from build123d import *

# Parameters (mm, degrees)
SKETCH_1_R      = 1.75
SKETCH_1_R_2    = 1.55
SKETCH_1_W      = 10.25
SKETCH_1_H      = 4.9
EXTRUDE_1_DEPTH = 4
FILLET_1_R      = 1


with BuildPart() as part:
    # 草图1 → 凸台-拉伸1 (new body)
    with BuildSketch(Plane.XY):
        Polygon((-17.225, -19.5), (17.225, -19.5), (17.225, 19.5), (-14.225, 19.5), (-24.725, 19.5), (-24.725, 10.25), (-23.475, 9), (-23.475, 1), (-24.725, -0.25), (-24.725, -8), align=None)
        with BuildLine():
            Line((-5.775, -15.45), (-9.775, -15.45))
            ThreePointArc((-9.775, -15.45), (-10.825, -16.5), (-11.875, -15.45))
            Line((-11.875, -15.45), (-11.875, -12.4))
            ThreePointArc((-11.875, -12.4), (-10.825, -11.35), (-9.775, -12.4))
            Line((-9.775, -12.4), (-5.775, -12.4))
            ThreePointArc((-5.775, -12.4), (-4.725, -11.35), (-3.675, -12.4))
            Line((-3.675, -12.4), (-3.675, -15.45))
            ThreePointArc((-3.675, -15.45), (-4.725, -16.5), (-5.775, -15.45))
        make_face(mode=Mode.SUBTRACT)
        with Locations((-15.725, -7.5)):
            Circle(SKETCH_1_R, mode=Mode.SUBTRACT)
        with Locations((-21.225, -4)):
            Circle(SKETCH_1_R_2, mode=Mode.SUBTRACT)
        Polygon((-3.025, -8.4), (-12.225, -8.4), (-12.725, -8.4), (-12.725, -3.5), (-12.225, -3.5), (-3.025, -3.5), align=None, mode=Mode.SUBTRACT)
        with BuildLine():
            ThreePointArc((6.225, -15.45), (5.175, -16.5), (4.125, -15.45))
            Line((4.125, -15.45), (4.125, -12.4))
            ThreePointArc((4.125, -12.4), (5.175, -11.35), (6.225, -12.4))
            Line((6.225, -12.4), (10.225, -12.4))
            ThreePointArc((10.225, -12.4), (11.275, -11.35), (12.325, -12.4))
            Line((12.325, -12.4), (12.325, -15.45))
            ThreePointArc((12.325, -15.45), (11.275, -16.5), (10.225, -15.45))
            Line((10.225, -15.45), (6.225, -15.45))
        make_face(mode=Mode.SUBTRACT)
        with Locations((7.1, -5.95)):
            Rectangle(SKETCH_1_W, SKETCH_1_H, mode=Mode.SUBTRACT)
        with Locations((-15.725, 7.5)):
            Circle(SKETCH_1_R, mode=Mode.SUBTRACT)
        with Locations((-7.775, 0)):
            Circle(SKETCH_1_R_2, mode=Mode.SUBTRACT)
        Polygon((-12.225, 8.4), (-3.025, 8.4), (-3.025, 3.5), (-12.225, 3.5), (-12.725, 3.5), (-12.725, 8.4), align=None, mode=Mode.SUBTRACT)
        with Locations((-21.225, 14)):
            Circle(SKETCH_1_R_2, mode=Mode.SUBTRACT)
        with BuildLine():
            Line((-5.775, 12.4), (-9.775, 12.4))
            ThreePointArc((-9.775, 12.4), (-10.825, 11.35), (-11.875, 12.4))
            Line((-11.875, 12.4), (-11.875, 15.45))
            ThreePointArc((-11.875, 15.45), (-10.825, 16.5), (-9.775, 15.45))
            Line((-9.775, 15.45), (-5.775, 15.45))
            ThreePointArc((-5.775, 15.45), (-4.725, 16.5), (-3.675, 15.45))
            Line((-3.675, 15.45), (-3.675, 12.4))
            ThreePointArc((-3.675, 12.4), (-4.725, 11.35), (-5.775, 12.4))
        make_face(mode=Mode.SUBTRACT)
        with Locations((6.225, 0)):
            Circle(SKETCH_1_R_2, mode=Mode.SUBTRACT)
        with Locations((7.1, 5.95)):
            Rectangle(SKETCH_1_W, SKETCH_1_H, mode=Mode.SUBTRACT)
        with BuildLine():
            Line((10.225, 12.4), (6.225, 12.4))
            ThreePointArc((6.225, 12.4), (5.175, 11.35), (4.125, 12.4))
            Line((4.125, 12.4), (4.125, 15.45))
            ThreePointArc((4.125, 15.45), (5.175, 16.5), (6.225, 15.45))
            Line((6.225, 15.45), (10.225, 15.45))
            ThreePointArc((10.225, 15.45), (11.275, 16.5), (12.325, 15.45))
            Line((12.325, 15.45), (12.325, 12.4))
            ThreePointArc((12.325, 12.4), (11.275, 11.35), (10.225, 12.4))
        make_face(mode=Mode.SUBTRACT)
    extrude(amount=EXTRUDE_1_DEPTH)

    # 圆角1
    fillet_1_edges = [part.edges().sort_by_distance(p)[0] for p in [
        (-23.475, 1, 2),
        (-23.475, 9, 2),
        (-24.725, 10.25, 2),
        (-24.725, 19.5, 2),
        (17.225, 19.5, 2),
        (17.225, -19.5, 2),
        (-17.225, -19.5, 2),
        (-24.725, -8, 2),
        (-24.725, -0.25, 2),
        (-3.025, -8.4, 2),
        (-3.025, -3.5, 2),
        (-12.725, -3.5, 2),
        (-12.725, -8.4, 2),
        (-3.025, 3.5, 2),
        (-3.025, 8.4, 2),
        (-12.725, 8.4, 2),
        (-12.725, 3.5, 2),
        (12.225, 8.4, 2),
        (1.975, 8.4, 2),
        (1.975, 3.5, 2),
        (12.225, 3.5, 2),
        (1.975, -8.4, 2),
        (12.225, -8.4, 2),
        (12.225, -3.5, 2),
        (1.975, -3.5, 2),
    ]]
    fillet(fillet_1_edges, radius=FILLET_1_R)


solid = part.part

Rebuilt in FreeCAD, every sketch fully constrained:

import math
import FreeCAD as App
import Part
import Sketcher


def edges_at(feature, points):
    """Names of the edges that pass closest to the given points."""
    edges = feature.Shape.Edges
    near = lambda p: min(range(len(edges)), key=lambda i: edges[i].distToShape(Part.Vertex(*p))[0])
    return sorted({f"Edge{near(p) + 1}" for p in points})

doc = App.newDocument("Part")
body = doc.addObject("PartDesign::Body", "Body")

# Sketch on XY plane
sketch1 = doc.addObject("Sketcher::SketchObject", "Sketch")
body.addObject(sketch1)
sketch1.AttachmentSupport = (doc.XY_Plane, [""])
sketch1.MapMode = "FlatFace"
sketch1.addGeometry(Part.LineSegment(App.Vector(-17.2, -19.5, 0), App.Vector(17.2, -19.5, 0)), False)
sketch1.addGeometry(Part.LineSegment(App.Vector(17.2, -19.5, 0), App.Vector(17.2, 19.5, 0)), False)
sketch1.addGeometry(Part.LineSegment(App.Vector(17.2, 19.5, 0), App.Vector(-24.7, 19.5, 0)), False)
sketch1.addGeometry(Part.LineSegment(App.Vector(-24.7, 19.5, 0), App.Vector(-24.7, 10.2, 0)), False)
sketch1.addGeometry(Part.LineSegment(App.Vector(-24.7, 10.2, 0), App.Vector(-23.5, 9, 0)), False)
sketch1.addGeometry(Part.LineSegment(App.Vector(-23.5, 9, 0), App.Vector(-23.5, 1, 0)), False)
sketch1.addGeometry(Part.LineSegment(App.Vector(-23.5, 1, 0), App.Vector(-24.7, -0.2, 0)), False)
sketch1.addGeometry(Part.LineSegment(App.Vector(-24.7, -0.2, 0), App.Vector(-24.7, -8, 0)), False)
sketch1.addGeometry(Part.LineSegment(App.Vector(-24.7, -8, 0), App.Vector(-17.2, -19.5, 0)), False)
sketch1.addGeometry(Part.ArcOfCircle(Part.Circle(App.Vector(-4.7, -15.4, 0), App.Vector(0, 0, 1), 1.1), math.radians(180), math.radians(360)), False)
sketch1.addGeometry(Part.LineSegment(App.Vector(-5.8, -15.4, 0), App.Vector(-9.8, -15.4, 0)), False)
sketch1.addGeometry(Part.ArcOfCircle(Part.Circle(App.Vector(-10.8, -15.4, 0), App.Vector(0, 0, 1), 1.1), math.radians(180), math.radians(360)), False)
sketch1.addGeometry(Part.LineSegment(App.Vector(-11.9, -15.4, 0), App.Vector(-11.9, -12.4, 0)), False)
sketch1.addGeometry(Part.ArcOfCircle(Part.Circle(App.Vector(-10.8, -12.4, 0), App.Vector(0, 0, 1), 1.1), math.radians(0), math.radians(180)), False)
sketch1.addGeometry(Part.LineSegment(App.Vector(-9.8, -12.4, 0), App.Vector(-5.8, -12.4, 0)), False)
sketch1.addGeometry(Part.ArcOfCircle(Part.Circle(App.Vector(-4.7, -12.4, 0), App.Vector(0, 0, 1), 1.1), math.radians(0), math.radians(180)), False)
sketch1.addGeometry(Part.LineSegment(App.Vector(-3.7, -12.4, 0), App.Vector(-3.7, -15.4, 0)), False)
sketch1.addGeometry(Part.Circle(App.Vector(-15.7, -7.5, 0), App.Vector(0, 0, 1), 1.8), False)
sketch1.addGeometry(Part.Circle(App.Vector(-21.2, -4, 0), App.Vector(0, 0, 1), 1.6), False)
sketch1.addGeometry(Part.LineSegment(App.Vector(-3, -3.5, 0), App.Vector(-3, -8.4, 0)), False)
sketch1.addGeometry(Part.LineSegment(App.Vector(-3, -8.4, 0), App.Vector(-12.7, -8.4, 0)), False)
sketch1.addGeometry(Part.LineSegment(App.Vector(-12.7, -8.4, 0), App.Vector(-12.7, -3.5, 0)), False)
sketch1.addGeometry(Part.LineSegment(App.Vector(-12.7, -3.5, 0), App.Vector(-3, -3.5, 0)), False)
sketch1.addGeometry(Part.LineSegment(App.Vector(10.2, -15.4, 0), App.Vector(6.2, -15.4, 0)), False)
sketch1.addGeometry(Part.ArcOfCircle(Part.Circle(App.Vector(5.2, -15.4, 0), App.Vector(0, 0, 1), 1.1), math.radians(180), math.radians(360)), False)
sketch1.addGeometry(Part.LineSegment(App.Vector(4.1, -15.4, 0), App.Vector(4.1, -12.4, 0)), False)
sketch1.addGeometry(Part.ArcOfCircle(Part.Circle(App.Vector(5.2, -12.4, 0), App.Vector(0, 0, 1), 1.1), math.radians(0), math.radians(180)), False)
sketch1.addGeometry(Part.LineSegment(App.Vector(6.2, -12.4, 0), App.Vector(10.2, -12.4, 0)), False)
sketch1.addGeometry(Part.ArcOfCircle(Part.Circle(App.Vector(11.3, -12.4, 0), App.Vector(0, 0, 1), 1.1), math.radians(0), math.radians(180)), False)
sketch1.addGeometry(Part.LineSegment(App.Vector(12.3, -12.4, 0), App.Vector(12.3, -15.4, 0)), False)
sketch1.addGeometry(Part.ArcOfCircle(Part.Circle(App.Vector(11.3, -15.4, 0), App.Vector(0, 0, 1), 1.1), math.radians(180), math.radians(360)), False)
sketch1.addGeometry(Part.LineSegment(App.Vector(12.2, -8.4, 0), App.Vector(2, -8.4, 0)), False)
sketch1.addGeometry(Part.LineSegment(App.Vector(2, -8.4, 0), App.Vector(2, -3.5, 0)), False)
sketch1.addGeometry(Part.LineSegment(App.Vector(2, -3.5, 0), App.Vector(12.2, -3.5, 0)), False)
sketch1.addGeometry(Part.LineSegment(App.Vector(12.2, -3.5, 0), App.Vector(12.2, -8.4, 0)), False)
sketch1.addGeometry(Part.Circle(App.Vector(-15.7, 7.5, 0), App.Vector(0, 0, 1), 1.8), False)
sketch1.addGeometry(Part.Circle(App.Vector(-7.8, 0, 0), App.Vector(0, 0, 1), 1.6), False)
sketch1.addGeometry(Part.LineSegment(App.Vector(-12.7, 8.4, 0), App.Vector(-3, 8.4, 0)), False)
sketch1.addGeometry(Part.LineSegment(App.Vector(-3, 8.4, 0), App.Vector(-3, 3.5, 0)), False)
sketch1.addGeometry(Part.LineSegment(App.Vector(-3, 3.5, 0), App.Vector(-12.7, 3.5, 0)), False)
sketch1.addGeometry(Part.LineSegment(App.Vector(-12.7, 3.5, 0), App.Vector(-12.7, 8.4, 0)), False)
sketch1.addGeometry(Part.Circle(App.Vector(-21.2, 14, 0), App.Vector(0, 0, 1), 1.6), False)
sketch1.addGeometry(Part.ArcOfCircle(Part.Circle(App.Vector(-4.7, 12.4, 0), App.Vector(0, 0, 1), 1.1), math.radians(180), math.radians(360)), False)
sketch1.addGeometry(Part.LineSegment(App.Vector(-5.8, 12.4, 0), App.Vector(-9.8, 12.4, 0)), False)
sketch1.addGeometry(Part.ArcOfCircle(Part.Circle(App.Vector(-10.8, 12.4, 0), App.Vector(0, 0, 1), 1.1), math.radians(180), math.radians(360)), False)
sketch1.addGeometry(Part.LineSegment(App.Vector(-11.9, 12.4, 0), App.Vector(-11.9, 15.4, 0)), False)
sketch1.addGeometry(Part.ArcOfCircle(Part.Circle(App.Vector(-10.8, 15.4, 0), App.Vector(0, 0, 1), 1.1), math.radians(0), math.radians(180)), False)
sketch1.addGeometry(Part.LineSegment(App.Vector(-9.8, 15.4, 0), App.Vector(-5.8, 15.4, 0)), False)
sketch1.addGeometry(Part.ArcOfCircle(Part.Circle(App.Vector(-4.7, 15.4, 0), App.Vector(0, 0, 1), 1.1), math.radians(0), math.radians(180)), False)
sketch1.addGeometry(Part.LineSegment(App.Vector(-3.7, 15.4, 0), App.Vector(-3.7, 12.4, 0)), False)
sketch1.addGeometry(Part.Circle(App.Vector(6.2, 0, 0), App.Vector(0, 0, 1), 1.6), False)
sketch1.addGeometry(Part.LineSegment(App.Vector(12.2, 3.5, 0), App.Vector(2, 3.5, 0)), False)
sketch1.addGeometry(Part.LineSegment(App.Vector(2, 3.5, 0), App.Vector(2, 8.4, 0)), False)
sketch1.addGeometry(Part.LineSegment(App.Vector(2, 8.4, 0), App.Vector(12.2, 8.4, 0)), False)
sketch1.addGeometry(Part.LineSegment(App.Vector(12.2, 8.4, 0), App.Vector(12.2, 3.5, 0)), False)
sketch1.addGeometry(Part.ArcOfCircle(Part.Circle(App.Vector(11.3, 12.4, 0), App.Vector(0, 0, 1), 1.1), math.radians(180), math.radians(360)), False)
sketch1.addGeometry(Part.LineSegment(App.Vector(10.2, 12.4, 0), App.Vector(6.2, 12.4, 0)), False)
sketch1.addGeometry(Part.ArcOfCircle(Part.Circle(App.Vector(5.2, 12.4, 0), App.Vector(0, 0, 1), 1.1), math.radians(180), math.radians(360)), False)
sketch1.addGeometry(Part.LineSegment(App.Vector(4.1, 12.4, 0), App.Vector(4.1, 15.4, 0)), False)
sketch1.addGeometry(Part.ArcOfCircle(Part.Circle(App.Vector(5.2, 15.4, 0), App.Vector(0, 0, 1), 1.1), math.radians(0), math.radians(180)), False)
sketch1.addGeometry(Part.LineSegment(App.Vector(6.2, 15.4, 0), App.Vector(10.2, 15.4, 0)), False)
sketch1.addGeometry(Part.ArcOfCircle(Part.Circle(App.Vector(11.3, 15.4, 0), App.Vector(0, 0, 1), 1.1), math.radians(0), math.radians(180)), False)
sketch1.addGeometry(Part.LineSegment(App.Vector(12.3, 15.4, 0), App.Vector(12.3, 12.4, 0)), False)
sketch1.addConstraint(Sketcher.Constraint("Coincident", 0, 2, 1, 1))
sketch1.addConstraint(Sketcher.Constraint("Coincident", 1, 2, 2, 1))
sketch1.addConstraint(Sketcher.Constraint("Coincident", 2, 2, 3, 1))
sketch1.addConstraint(Sketcher.Constraint("Coincident", 3, 2, 4, 1))
sketch1.addConstraint(Sketcher.Constraint("Coincident", 4, 2, 5, 1))
sketch1.addConstraint(Sketcher.Constraint("Coincident", 5, 2, 6, 1))
sketch1.addConstraint(Sketcher.Constraint("Coincident", 6, 2, 7, 1))
sketch1.addConstraint(Sketcher.Constraint("Coincident", 7, 2, 8, 1))
sketch1.addConstraint(Sketcher.Constraint("Coincident", 8, 2, 0, 1))
sketch1.addConstraint(Sketcher.Constraint("Coincident", 9, 1, 10, 1))
sketch1.addConstraint(Sketcher.Constraint("Coincident", 10, 2, 11, 2))
sketch1.addConstraint(Sketcher.Constraint("Tangent", 11, 1, 12, 1))
sketch1.addConstraint(Sketcher.Constraint("Tangent", 12, 2, 13, 2))
sketch1.addConstraint(Sketcher.Constraint("Coincident", 13, 1, 14, 1))
sketch1.addConstraint(Sketcher.Constraint("Coincident", 14, 2, 15, 2))
sketch1.addConstraint(Sketcher.Constraint("Tangent", 15, 1, 16, 1))
sketch1.addConstraint(Sketcher.Constraint("Tangent", 16, 2, 9, 2))
sketch1.addConstraint(Sketcher.Constraint("Coincident", 19, 2, 20, 1))
sketch1.addConstraint(Sketcher.Constraint("Coincident", 20, 2, 21, 1))
sketch1.addConstraint(Sketcher.Constraint("Coincident", 21, 2, 22, 1))
sketch1.addConstraint(Sketcher.Constraint("Coincident", 22, 2, 19, 1))
sketch1.addConstraint(Sketcher.Constraint("Coincident", 23, 2, 24, 2))
sketch1.addConstraint(Sketcher.Constraint("Tangent", 24, 1, 25, 1))
sketch1.addConstraint(Sketcher.Constraint("Tangent", 25, 2, 26, 2))
sketch1.addConstraint(Sketcher.Constraint("Coincident", 26, 1, 27, 1))
sketch1.addConstraint(Sketcher.Constraint("Coincident", 27, 2, 28, 2))
sketch1.addConstraint(Sketcher.Constraint("Tangent", 28, 1, 29, 1))
sketch1.addConstraint(Sketcher.Constraint("Tangent", 29, 2, 30, 2))
sketch1.addConstraint(Sketcher.Constraint("Coincident", 30, 1, 23, 1))
sketch1.addConstraint(Sketcher.Constraint("Coincident", 31, 2, 32, 1))
sketch1.addConstraint(Sketcher.Constraint("Coincident", 32, 2, 33, 1))
sketch1.addConstraint(Sketcher.Constraint("Coincident", 33, 2, 34, 1))
sketch1.addConstraint(Sketcher.Constraint("Coincident", 34, 2, 31, 1))
sketch1.addConstraint(Sketcher.Constraint("Coincident", 37, 2, 38, 1))
sketch1.addConstraint(Sketcher.Constraint("Coincident", 38, 2, 39, 1))
sketch1.addConstraint(Sketcher.Constraint("Coincident", 39, 2, 40, 1))
sketch1.addConstraint(Sketcher.Constraint("Coincident", 40, 2, 37, 1))
sketch1.addConstraint(Sketcher.Constraint("Coincident", 42, 1, 43, 1))
sketch1.addConstraint(Sketcher.Constraint("Coincident", 43, 2, 44, 2))
sketch1.addConstraint(Sketcher.Constraint("Tangent", 44, 1, 45, 1))
sketch1.addConstraint(Sketcher.Constraint("Tangent", 45, 2, 46, 2))
sketch1.addConstraint(Sketcher.Constraint("Coincident", 46, 1, 47, 1))
sketch1.addConstraint(Sketcher.Constraint("Coincident", 47, 2, 48, 2))
sketch1.addConstraint(Sketcher.Constraint("Tangent", 48, 1, 49, 1))
sketch1.addConstraint(Sketcher.Constraint("Tangent", 49, 2, 42, 2))
sketch1.addConstraint(Sketcher.Constraint("Coincident", 51, 2, 52, 1))
sketch1.addConstraint(Sketcher.Constraint("Coincident", 52, 2, 53, 1))
sketch1.addConstraint(Sketcher.Constraint("Coincident", 53, 2, 54, 1))
sketch1.addConstraint(Sketcher.Constraint("Coincident", 54, 2, 51, 1))
sketch1.addConstraint(Sketcher.Constraint("Coincident", 55, 1, 56, 1))
sketch1.addConstraint(Sketcher.Constraint("Coincident", 56, 2, 57, 2))
sketch1.addConstraint(Sketcher.Constraint("Tangent", 57, 1, 58, 1))
sketch1.addConstraint(Sketcher.Constraint("Tangent", 58, 2, 59, 2))
sketch1.addConstraint(Sketcher.Constraint("Coincident", 59, 1, 60, 1))
sketch1.addConstraint(Sketcher.Constraint("Coincident", 60, 2, 61, 2))
sketch1.addConstraint(Sketcher.Constraint("Tangent", 61, 1, 62, 1))
sketch1.addConstraint(Sketcher.Constraint("Tangent", 62, 2, 55, 2))
sketch1.addConstraint(Sketcher.Constraint("Horizontal", 0))
sketch1.addConstraint(Sketcher.Constraint("Vertical", 1))
sketch1.addConstraint(Sketcher.Constraint("Horizontal", 2))
sketch1.addConstraint(Sketcher.Constraint("Vertical", 3))
sketch1.addConstraint(Sketcher.Constraint("Vertical", 5))
sketch1.addConstraint(Sketcher.Constraint("Vertical", 7))
sketch1.addConstraint(Sketcher.Constraint("Horizontal", 10))
sketch1.addConstraint(Sketcher.Constraint("Vertical", 12))
sketch1.addConstraint(Sketcher.Constraint("Horizontal", 14))
sketch1.addConstraint(Sketcher.Constraint("Vertical", 16))
sketch1.addConstraint(Sketcher.Constraint("Vertical", 19))
sketch1.addConstraint(Sketcher.Constraint("Horizontal", 20))
sketch1.addConstraint(Sketcher.Constraint("Vertical", 21))
sketch1.addConstraint(Sketcher.Constraint("Horizontal", 22))
sketch1.addConstraint(Sketcher.Constraint("Horizontal", 23))
sketch1.addConstraint(Sketcher.Constraint("Vertical", 25))
sketch1.addConstraint(Sketcher.Constraint("Horizontal", 27))
sketch1.addConstraint(Sketcher.Constraint("Vertical", 29))
sketch1.addConstraint(Sketcher.Constraint("Horizontal", 31))
sketch1.addConstraint(Sketcher.Constraint("Vertical", 32))
sketch1.addConstraint(Sketcher.Constraint("Horizontal", 33))
sketch1.addConstraint(Sketcher.Constraint("Vertical", 34))
sketch1.addConstraint(Sketcher.Constraint("Horizontal", 37))
sketch1.addConstraint(Sketcher.Constraint("Vertical", 38))
sketch1.addConstraint(Sketcher.Constraint("Horizontal", 39))
sketch1.addConstraint(Sketcher.Constraint("Vertical", 40))
sketch1.addConstraint(Sketcher.Constraint("Horizontal", 43))
sketch1.addConstraint(Sketcher.Constraint("Vertical", 45))
sketch1.addConstraint(Sketcher.Constraint("Horizontal", 47))
sketch1.addConstraint(Sketcher.Constraint("Vertical", 49))
sketch1.addConstraint(Sketcher.Constraint("Horizontal", 51))
sketch1.addConstraint(Sketcher.Constraint("Vertical", 52))
sketch1.addConstraint(Sketcher.Constraint("Horizontal", 53))
sketch1.addConstraint(Sketcher.Constraint("Vertical", 54))
sketch1.addConstraint(Sketcher.Constraint("Horizontal", 56))
sketch1.addConstraint(Sketcher.Constraint("Vertical", 58))
sketch1.addConstraint(Sketcher.Constraint("Horizontal", 60))
sketch1.addConstraint(Sketcher.Constraint("Vertical", 62))
sketch1.addConstraint(Sketcher.Constraint("Equal", 9, 11))
sketch1.addConstraint(Sketcher.Constraint("Equal", 11, 13))
sketch1.addConstraint(Sketcher.Constraint("Equal", 13, 15))
sketch1.addConstraint(Sketcher.Constraint("Equal", 15, 24))
sketch1.addConstraint(Sketcher.Constraint("Equal", 24, 26))
sketch1.addConstraint(Sketcher.Constraint("Equal", 26, 28))
sketch1.addConstraint(Sketcher.Constraint("Equal", 28, 30))
sketch1.addConstraint(Sketcher.Constraint("Equal", 17, 35))
sketch1.addConstraint(Sketcher.Constraint("Equal", 18, 36))
sketch1.addConstraint(Sketcher.Constraint("Equal", 36, 41))
sketch1.addConstraint(Sketcher.Constraint("Equal", 30, 42))
sketch1.addConstraint(Sketcher.Constraint("Equal", 42, 44))
sketch1.addConstraint(Sketcher.Constraint("Equal", 44, 46))
sketch1.addConstraint(Sketcher.Constraint("Equal", 46, 48))
sketch1.addConstraint(Sketcher.Constraint("Equal", 41, 50))
sketch1.addConstraint(Sketcher.Constraint("Equal", 48, 55))
sketch1.addConstraint(Sketcher.Constraint("Equal", 55, 57))
sketch1.addConstraint(Sketcher.Constraint("Equal", 57, 59))
sketch1.addConstraint(Sketcher.Constraint("Equal", 59, 61))
sketch1.addConstraint(Sketcher.Constraint("Symmetric", 1, 2, 8, 2, -1, 1))
sketch1.addConstraint(Sketcher.Constraint("Symmetric", 17, 3, 35, 3, -1))
sketch1.addConstraint(Sketcher.Constraint("Symmetric", 15, 3, 42, 3, -1))
sketch1.addConstraint(Sketcher.Constraint("Symmetric", 13, 3, 44, 3, -1))
sketch1.addConstraint(Sketcher.Constraint("Symmetric", 28, 3, 55, 3, -1))
sketch1.addConstraint(Sketcher.Constraint("Symmetric", 26, 3, 57, 3, -1))
sketch1.addConstraint(Sketcher.Constraint("Symmetric", 19, 2, 37, 2, -1))
sketch1.addConstraint(Sketcher.Constraint("Symmetric", 21, 2, 39, 2, -1))
sketch1.addConstraint(Sketcher.Constraint("Symmetric", 32, 2, 51, 2, -1))
sketch1.addConstraint(Sketcher.Constraint("Symmetric", 34, 2, 53, 2, -1))
sketch1.addConstraint(Sketcher.Constraint("PointOnObject", 36, 3, -1))
sketch1.addConstraint(Sketcher.Constraint("PointOnObject", 50, 3, -1))
sketch1.addConstraint(Sketcher.Constraint("Perpendicular", 4, 6))
sketch1.addConstraint(Sketcher.Constraint("Horizontal", 9, 3, 11, 3))
sketch1.addConstraint(Sketcher.Constraint("Horizontal", 13, 3, 15, 3))
sketch1.addConstraint(Sketcher.Constraint("Horizontal", 11, 3, 24, 3))
sketch1.addConstraint(Sketcher.Constraint("Horizontal", 15, 3, 26, 3))
sketch1.addConstraint(Sketcher.Constraint("Horizontal", 26, 3, 28, 3))
sketch1.addConstraint(Sketcher.Constraint("Horizontal", 24, 3, 30, 3))
sketch1.addConstraint(Sketcher.Constraint("Horizontal", 46, 3, 48, 3))
sketch1.addConstraint(Sketcher.Constraint("Horizontal", 48, 3, 59, 3))
sketch1.addConstraint(Sketcher.Constraint("Horizontal", 59, 3, 61, 3))
sketch1.addConstraint(Sketcher.Constraint("Horizontal", 30, 3, 9, 1))
sketch1.addConstraint(Sketcher.Constraint("Horizontal", 12, 2, 13, 1))
sketch1.addConstraint(Sketcher.Constraint("Horizontal", 16, 2, 23, 2))
sketch1.addConstraint(Sketcher.Constraint("Horizontal", 25, 2, 26, 1))
sketch1.addConstraint(Sketcher.Constraint("Horizontal", 20, 2, 31, 2))
sketch1.addConstraint(Sketcher.Constraint("Horizontal", 22, 2, 32, 2))
sketch1.addConstraint(Sketcher.Constraint("Horizontal", 57, 3, 42, 1))
sketch1.addConstraint(Sketcher.Constraint("Horizontal", 45, 2, 46, 1))
sketch1.addConstraint(Sketcher.Constraint("Horizontal", 49, 2, 55, 1))
sketch1.addConstraint(Sketcher.Constraint("Horizontal", 58, 2, 59, 1))
sketch1.addConstraint(Sketcher.Constraint("Vertical", 18, 3, 41, 3))
sketch1.addConstraint(Sketcher.Constraint("Vertical", 3, 2, 6, 2))
sketch1.addConstraint(Sketcher.Constraint("Vertical", 50, 3, 23, 2))
sketch1.addConstraint(Sketcher.Constraint("Equal", 14, 23))
sketch1.addConstraint(Sketcher.Constraint("Equal", 29, 45))
sketch1.addConstraint(Sketcher.Constraint("Equal", 4, 6))
sketch1.addConstraint(Sketcher.Constraint("Diameter", 17, 3.5))
sketch1.addConstraint(Sketcher.Constraint("Diameter", 18, 3.1))
sketch1.addConstraint(Sketcher.Constraint("DistanceX", 10, 2, 10, 1, 4.0))
sketch1.addConstraint(Sketcher.Constraint("DistanceY", 1, 1, 1, 2, 39.0))
sketch1.addConstraint(Sketcher.Constraint("DistanceY", 5, 2, 5, 1, 8.0))
sketch1.addConstraint(Sketcher.Constraint("Radius", 9, 1.05))
sketch1.addConstraint(Sketcher.Constraint("DistanceX", 20, 2, 20, 1, 9.7))
sketch1.addConstraint(Sketcher.Constraint("DistanceY", 19, 2, 19, 1, 4.9))
sketch1.addConstraint(Sketcher.Constraint("DistanceY", 18, 3, -1, 1, 4.0))
sketch1.addConstraint(Sketcher.Constraint("DistanceY", -1, 1, 41, 3, 14.0))
sketch1.addConstraint(Sketcher.Constraint("DistanceY", -1, 1, 4, 2, 9.0))
sketch1.addConstraint(Sketcher.Constraint("DistanceY", 7, 2, -1, 1, 8.0))
sketch1.addConstraint(Sketcher.Constraint("DistanceX", 0, 1, 0, 2, 34.45))
sketch1.addConstraint(Sketcher.Constraint("DistanceX", 2, 2, 2, 1, 41.95))
sketch1.addConstraint(Sketcher.Constraint("DistanceX", 31, 2, 31, 1, 10.25))
sketch1.addConstraint(Sketcher.Constraint("DistanceY", 3, 2, 3, 1, 9.25))
sketch1.addConstraint(Sketcher.Constraint("DistanceY", 12, 1, 12, 2, 3.05))
sketch1.addConstraint(Sketcher.Constraint("DistanceY", 13, 3, -1, 1, 12.4))
sketch1.addConstraint(Sketcher.Constraint("DistanceY", 17, 3, -1, 1, 7.5))
sketch1.addConstraint(Sketcher.Constraint("DistanceY", 19, 2, -1, 1, 8.4))
sketch1.addConstraint(Sketcher.Constraint("DistanceX", 9, 3, -1, 1, 4.725))
sketch1.addConstraint(Sketcher.Constraint("DistanceX", 17, 3, -1, 1, 15.725))
sketch1.addConstraint(Sketcher.Constraint("DistanceX", 18, 3, -1, 1, 21.225))
sketch1.addConstraint(Sketcher.Constraint("DistanceX", -1, 1, 24, 3, 5.175))
sketch1.addConstraint(Sketcher.Constraint("DistanceX", 36, 3, -1, 1, 7.775))
sketch1.addConstraint(Sketcher.Constraint("DistanceX", 19, 2, -1, 1, 3.025))
sketch1.addConstraint(Sketcher.Constraint("DistanceX", -1, 1, 31, 2, 1.975))
pad1 = doc.addObject("PartDesign::Pad", "Pad")
body.addObject(pad1)
pad1.Profile = sketch1
pad1.Length = 4
doc.recompute()

fillet = doc.addObject("PartDesign::Fillet", "Fillet")
body.addObject(fillet)
fillet.Base = (pad1, edges_at(pad1, [
    (-23.475, 1, 2),
    (-23.475, 9, 2),
    (-24.725, 10.25, 2),
    (-24.725, 19.5, 2),
    (17.225, 19.5, 2),
    (17.225, -19.5, 2),
    (-17.225, -19.5, 2),
    (-24.725, -8, 2),
    (-24.725, -0.25, 2),
    (-3.025, -8.4, 2),
    (-3.025, -3.5, 2),
    (-12.725, -3.5, 2),
    (-12.725, -8.4, 2),
    (-3.025, 3.5, 2),
    (-3.025, 8.4, 2),
    (-12.725, 8.4, 2),
    (-12.725, 3.5, 2),
    (12.225, 8.4, 2),
    (1.975, 8.4, 2),
    (1.975, 3.5, 2),
    (12.225, 3.5, 2),
    (1.975, -8.4, 2),
    (12.225, -8.4, 2),
    (12.225, -3.5, 2),
    (1.975, -3.5, 2),
]))
fillet.Radius = 1

doc.recompute()
